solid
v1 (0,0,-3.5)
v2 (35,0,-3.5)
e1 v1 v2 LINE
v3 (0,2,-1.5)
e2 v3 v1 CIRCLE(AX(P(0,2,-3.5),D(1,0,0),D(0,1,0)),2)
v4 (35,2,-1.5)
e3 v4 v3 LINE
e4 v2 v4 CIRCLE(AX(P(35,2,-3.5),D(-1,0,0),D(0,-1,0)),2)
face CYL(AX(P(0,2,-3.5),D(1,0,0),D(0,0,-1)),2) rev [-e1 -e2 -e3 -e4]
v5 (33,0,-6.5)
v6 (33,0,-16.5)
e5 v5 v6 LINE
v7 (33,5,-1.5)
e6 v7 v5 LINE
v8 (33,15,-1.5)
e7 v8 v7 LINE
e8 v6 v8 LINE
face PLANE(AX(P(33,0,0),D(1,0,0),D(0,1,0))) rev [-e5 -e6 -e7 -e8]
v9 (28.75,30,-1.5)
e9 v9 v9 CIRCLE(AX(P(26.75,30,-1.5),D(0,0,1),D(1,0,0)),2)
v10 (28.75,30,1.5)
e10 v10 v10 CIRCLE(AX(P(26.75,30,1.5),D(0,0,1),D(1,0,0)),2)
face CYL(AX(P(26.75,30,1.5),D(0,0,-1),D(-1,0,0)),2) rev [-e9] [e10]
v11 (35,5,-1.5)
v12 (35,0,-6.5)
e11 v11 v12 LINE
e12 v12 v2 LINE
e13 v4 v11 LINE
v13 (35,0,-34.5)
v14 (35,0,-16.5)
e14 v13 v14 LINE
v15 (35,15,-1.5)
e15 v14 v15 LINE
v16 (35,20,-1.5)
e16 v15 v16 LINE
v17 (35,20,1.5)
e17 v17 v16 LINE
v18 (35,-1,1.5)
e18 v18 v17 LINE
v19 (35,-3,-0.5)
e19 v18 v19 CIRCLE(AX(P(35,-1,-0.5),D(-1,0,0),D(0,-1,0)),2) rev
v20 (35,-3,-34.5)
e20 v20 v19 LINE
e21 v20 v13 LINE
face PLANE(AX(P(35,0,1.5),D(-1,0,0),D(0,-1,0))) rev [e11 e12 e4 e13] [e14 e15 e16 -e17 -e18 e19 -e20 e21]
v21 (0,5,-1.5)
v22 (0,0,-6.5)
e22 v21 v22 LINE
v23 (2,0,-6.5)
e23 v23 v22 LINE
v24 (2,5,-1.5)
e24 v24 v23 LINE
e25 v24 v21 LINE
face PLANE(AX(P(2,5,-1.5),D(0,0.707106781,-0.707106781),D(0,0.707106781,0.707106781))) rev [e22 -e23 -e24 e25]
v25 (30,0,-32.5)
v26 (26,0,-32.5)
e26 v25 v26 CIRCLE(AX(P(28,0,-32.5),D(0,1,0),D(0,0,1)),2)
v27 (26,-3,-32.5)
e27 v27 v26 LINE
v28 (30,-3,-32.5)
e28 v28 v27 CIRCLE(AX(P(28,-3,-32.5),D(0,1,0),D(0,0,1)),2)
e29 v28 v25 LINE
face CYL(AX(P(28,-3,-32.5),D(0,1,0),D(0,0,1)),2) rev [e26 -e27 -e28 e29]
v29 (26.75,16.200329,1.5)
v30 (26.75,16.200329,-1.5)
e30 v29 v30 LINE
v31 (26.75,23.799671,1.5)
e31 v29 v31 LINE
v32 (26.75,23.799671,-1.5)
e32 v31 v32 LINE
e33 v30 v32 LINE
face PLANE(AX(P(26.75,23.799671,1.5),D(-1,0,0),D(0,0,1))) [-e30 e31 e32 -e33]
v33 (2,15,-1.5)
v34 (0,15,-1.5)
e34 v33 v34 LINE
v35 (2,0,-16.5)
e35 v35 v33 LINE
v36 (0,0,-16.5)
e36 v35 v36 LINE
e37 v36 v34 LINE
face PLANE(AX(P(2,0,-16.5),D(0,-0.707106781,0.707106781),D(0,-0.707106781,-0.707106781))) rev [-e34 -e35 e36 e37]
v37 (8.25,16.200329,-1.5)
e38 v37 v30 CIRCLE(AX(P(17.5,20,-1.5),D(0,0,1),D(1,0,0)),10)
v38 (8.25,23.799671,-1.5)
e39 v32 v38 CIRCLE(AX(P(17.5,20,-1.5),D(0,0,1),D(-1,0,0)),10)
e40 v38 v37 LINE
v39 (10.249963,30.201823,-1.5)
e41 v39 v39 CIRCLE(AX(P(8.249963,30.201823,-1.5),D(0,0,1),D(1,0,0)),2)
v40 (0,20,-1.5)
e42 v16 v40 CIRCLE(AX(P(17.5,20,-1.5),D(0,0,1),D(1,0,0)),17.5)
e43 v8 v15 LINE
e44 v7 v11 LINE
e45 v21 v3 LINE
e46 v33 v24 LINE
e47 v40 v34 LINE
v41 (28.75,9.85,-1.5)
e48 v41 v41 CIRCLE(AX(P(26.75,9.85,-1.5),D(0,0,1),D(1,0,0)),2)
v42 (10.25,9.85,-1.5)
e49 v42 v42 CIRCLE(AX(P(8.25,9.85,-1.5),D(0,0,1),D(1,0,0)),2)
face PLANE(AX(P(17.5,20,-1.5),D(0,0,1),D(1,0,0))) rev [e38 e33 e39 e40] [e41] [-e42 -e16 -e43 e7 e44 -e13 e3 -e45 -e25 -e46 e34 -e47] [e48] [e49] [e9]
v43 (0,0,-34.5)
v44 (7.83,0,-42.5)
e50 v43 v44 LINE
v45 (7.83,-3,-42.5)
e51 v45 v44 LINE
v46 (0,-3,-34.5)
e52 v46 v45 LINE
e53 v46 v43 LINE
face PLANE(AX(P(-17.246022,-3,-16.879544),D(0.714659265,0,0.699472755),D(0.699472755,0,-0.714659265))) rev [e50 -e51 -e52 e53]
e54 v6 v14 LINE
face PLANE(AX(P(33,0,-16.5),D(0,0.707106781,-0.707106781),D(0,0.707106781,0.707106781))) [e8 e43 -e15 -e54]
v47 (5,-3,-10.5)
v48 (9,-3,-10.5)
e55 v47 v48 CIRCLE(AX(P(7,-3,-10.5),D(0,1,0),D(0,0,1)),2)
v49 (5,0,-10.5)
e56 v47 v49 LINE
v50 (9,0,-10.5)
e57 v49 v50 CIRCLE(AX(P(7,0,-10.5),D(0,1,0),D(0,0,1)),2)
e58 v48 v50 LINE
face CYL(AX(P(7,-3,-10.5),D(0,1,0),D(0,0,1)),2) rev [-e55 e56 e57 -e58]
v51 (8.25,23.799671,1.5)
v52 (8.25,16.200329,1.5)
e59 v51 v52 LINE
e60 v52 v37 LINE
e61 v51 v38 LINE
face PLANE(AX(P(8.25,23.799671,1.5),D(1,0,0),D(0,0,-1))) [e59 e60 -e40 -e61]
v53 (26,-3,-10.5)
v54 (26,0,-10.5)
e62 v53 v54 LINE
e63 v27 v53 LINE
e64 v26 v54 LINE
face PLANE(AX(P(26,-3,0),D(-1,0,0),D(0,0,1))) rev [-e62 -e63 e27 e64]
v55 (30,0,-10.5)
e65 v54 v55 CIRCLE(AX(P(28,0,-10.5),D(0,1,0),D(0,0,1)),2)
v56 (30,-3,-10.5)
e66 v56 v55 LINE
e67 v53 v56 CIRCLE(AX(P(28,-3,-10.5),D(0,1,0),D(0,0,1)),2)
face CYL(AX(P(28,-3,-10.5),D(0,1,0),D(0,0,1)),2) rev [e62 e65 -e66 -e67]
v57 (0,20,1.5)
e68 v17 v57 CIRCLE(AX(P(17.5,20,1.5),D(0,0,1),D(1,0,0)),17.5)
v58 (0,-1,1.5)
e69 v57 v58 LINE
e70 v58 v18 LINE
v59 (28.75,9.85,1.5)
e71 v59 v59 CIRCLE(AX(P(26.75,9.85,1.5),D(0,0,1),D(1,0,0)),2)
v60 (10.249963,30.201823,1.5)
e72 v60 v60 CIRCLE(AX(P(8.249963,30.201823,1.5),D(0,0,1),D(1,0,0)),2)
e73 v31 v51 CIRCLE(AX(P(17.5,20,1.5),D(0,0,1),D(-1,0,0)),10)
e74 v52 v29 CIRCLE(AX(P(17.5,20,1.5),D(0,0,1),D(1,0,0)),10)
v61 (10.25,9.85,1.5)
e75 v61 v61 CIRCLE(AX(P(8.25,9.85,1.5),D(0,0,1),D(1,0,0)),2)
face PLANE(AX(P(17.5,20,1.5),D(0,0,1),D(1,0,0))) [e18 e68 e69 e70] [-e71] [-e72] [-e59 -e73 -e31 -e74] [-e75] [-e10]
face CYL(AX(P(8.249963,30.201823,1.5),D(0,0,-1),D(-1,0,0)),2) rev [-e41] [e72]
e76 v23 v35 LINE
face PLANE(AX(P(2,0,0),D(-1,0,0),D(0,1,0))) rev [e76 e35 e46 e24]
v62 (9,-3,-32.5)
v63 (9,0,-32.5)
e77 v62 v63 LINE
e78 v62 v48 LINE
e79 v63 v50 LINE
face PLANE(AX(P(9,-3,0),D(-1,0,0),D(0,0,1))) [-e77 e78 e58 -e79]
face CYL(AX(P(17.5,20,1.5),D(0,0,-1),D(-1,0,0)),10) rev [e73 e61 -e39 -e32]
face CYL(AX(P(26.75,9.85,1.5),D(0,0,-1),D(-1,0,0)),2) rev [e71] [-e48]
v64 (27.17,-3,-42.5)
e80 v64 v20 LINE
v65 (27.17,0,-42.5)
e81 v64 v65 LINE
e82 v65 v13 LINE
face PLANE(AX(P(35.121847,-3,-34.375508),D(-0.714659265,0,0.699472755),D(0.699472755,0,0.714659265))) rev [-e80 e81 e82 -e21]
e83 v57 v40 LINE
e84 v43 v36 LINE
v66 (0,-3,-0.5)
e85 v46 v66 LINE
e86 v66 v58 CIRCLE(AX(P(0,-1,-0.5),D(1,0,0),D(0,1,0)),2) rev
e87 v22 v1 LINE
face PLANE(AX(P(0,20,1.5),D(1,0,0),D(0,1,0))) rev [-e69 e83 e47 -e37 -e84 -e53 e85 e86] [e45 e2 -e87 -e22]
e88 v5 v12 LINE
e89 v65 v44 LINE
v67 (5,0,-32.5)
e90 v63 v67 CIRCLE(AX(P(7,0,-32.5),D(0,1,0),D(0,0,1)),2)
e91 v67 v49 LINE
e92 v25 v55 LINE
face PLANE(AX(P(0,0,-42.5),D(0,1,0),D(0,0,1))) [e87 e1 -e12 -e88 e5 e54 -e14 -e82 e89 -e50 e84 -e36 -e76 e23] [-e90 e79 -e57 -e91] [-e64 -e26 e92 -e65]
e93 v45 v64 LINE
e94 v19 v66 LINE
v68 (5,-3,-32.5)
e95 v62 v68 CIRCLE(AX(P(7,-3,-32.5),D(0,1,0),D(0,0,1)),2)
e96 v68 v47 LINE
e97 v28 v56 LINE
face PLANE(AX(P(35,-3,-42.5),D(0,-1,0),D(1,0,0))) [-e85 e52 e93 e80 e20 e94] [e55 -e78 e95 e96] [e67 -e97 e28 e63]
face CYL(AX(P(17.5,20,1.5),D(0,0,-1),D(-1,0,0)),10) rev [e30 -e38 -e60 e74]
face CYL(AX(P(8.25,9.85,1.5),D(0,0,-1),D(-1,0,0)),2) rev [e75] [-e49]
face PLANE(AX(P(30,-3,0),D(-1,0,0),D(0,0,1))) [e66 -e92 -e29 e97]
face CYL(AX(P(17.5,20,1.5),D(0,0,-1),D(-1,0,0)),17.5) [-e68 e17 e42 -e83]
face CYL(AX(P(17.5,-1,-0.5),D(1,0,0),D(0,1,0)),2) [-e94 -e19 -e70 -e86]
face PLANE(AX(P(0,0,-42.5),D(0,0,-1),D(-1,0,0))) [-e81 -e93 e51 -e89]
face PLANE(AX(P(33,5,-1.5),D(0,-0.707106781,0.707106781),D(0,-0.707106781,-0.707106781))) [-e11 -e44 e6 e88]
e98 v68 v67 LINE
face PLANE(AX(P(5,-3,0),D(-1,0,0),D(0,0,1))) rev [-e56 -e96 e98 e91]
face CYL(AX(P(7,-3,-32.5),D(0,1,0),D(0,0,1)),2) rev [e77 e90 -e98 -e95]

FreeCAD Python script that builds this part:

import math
import FreeCAD as App
import Part
import Sketcher

V = App.Vector
Q = App.Units.Quantity


def edges_at(feature, points):
    """Names of the edges that pass closest to the given points."""
    edges = feature.Shape.Edges
    near = lambda p: min(range(len(edges)), key=lambda i: edges[i].distToShape(Part.Vertex(*p))[0])
    return sorted({f"Edge{near(p) + 1}" for p in points})


def add_polygon(sketch, points):
    """Adds a closed chain of lines whose ends are joined by coincident constraints."""
    first, n = sketch.GeometryCount, len(points)
    for a, b in zip(points, points[1:] + points[:1]):
        sketch.addGeometry(Part.LineSegment(App.Vector(*a, 0), App.Vector(*b, 0)), False)
    for i in range(n):
        sketch.addConstraint(Sketcher.Constraint("Coincident", first + i, 2, first + (i + 1) % n, 1))

doc = App.newDocument("Part")
params = doc.addObject("Spreadsheet::Sheet", "Params")
for row, (alias, value) in enumerate([
    ("sketch1_diameter", "4 mm"),
    ("sketch1_radius", "10 mm"),
    ("sketch1_radius2", "17.5 mm"),
    ("sketch1_height", "20 mm"),
    ("pad1_length", "3 mm"),
    ("sketch2_width", "35 mm"),
    ("sketch2_height", "3 mm"),
    ("pad2_length", "44 mm"),
    ("sketch3_width", "10 mm"),
    ("pad3_length", "2 mm"),
    ("sketch4_radius", "2 mm"),
    ("sketch4_height", "22 mm"),
    ("sketch4_height2", "8 mm"),
    ("sketch4_width", "7.83 mm"),
    ("fillet_radius", "2 mm"),
], start=1):
    params.set(f"A{row}", alias)
    params.set(f"B{row}", "=" + value)
    params.setAlias(f"B{row}", alias)

body = doc.addObject("PartDesign::Body", "Body")

# Sketch on XY plane
sketch1 = body.newObject("Sketcher::SketchObject", "Sketch")
sketch1.AttachmentSupport = (doc.getObject("XY_Plane"), [""])
sketch1.MapMode = "FlatFace"
sketch1.addGeometry(Part.LineSegment(V(0, 0, 0), V(35, 0, 0)), False)
sketch1.addGeometry(Part.LineSegment(V(35, 0, 0), V(35, 20, 0)), False)
sketch1.addGeometry(Part.ArcOfCircle(Part.Circle(V(17.5, 20, 0), V(0, 0, 1), 17.5), math.radians(0), math.radians(180)), False)
sketch1.addGeometry(Part.LineSegment(V(0, 20, 0), V(0, 0, 0)), False)
sketch1.addGeometry(Part.Circle(V(8.25, 9.85, 0), V(0, 0, 1), 2), False)
sketch1.addGeometry(Part.Circle(V(26.75, 9.85, 0), V(0, 0, 1), 2), False)
sketch1.addGeometry(Part.LineSegment(V(8.25, 16.200329, 0), V(8.25, 23.799671, 0)), False)
sketch1.addGeometry(Part.ArcOfCircle(Part.Circle(V(17.5, 20, 0), V(0, 0, 1), 10), math.radians(22.331645), math.radians(157.668355)), False)
sketch1.addGeometry(Part.LineSegment(V(26.75, 23.799671, 0), V(26.75, 16.200329, 0)), False)
sketch1.addGeometry(Part.ArcOfCircle(Part.Circle(V(17.5, 20, 0), V(0, 0, 1), 10), math.radians(-157.668355), math.radians(-22.331645)), False)
sketch1.addGeometry(Part.Circle(V(8.249963, 30.201823, 0), V(0, 0, 1), 2), False)
sketch1.addGeometry(Part.Circle(V(26.75, 30, 0), V(0, 0, 1), 2), False)
sketch1.addConstraint(Sketcher.Constraint("Coincident", 0, 2, 1, 1))
sketch1.addConstraint(Sketcher.Constraint("Tangent", 1, 2, 2, 1))
sketch1.addConstraint(Sketcher.Constraint("Tangent", 2, 2, 3, 1))
sketch1.addConstraint(Sketcher.Constraint("Coincident", 3, 2, 0, 1))
sketch1.addConstraint(Sketcher.Constraint("Coincident", 6, 2, 7, 2))
sketch1.addConstraint(Sketcher.Constraint("Coincident", 7, 1, 8, 1))
sketch1.addConstraint(Sketcher.Constraint("Coincident", 8, 2, 9, 2))
sketch1.addConstraint(Sketcher.Constraint("Coincident", 9, 1, 6, 1))
sketch1.addConstraint(Sketcher.Constraint("Horizontal", 0))
sketch1.addConstraint(Sketcher.Constraint("Vertical", 1))
sketch1.addConstraint(Sketcher.Constraint("Vertical", 3))
sketch1.addConstraint(Sketcher.Constraint("Vertical", 6))
sketch1.addConstraint(Sketcher.Constraint("Vertical", 8))
sketch1.addConstraint(Sketcher.Constraint("Coincident", 3, 2, -1, 1))
sketch1.addConstraint(Sketcher.Constraint("Coincident", 7, 3, 2, 3))
sketch1.addConstraint(Sketcher.Constraint("Coincident", 9, 3, 2, 3))
sketch1.addConstraint(Sketcher.Constraint("Equal", 4, 5))
sketch1.addConstraint(Sketcher.Constraint("Equal", 7, 9))
sketch1.addConstraint(Sketcher.Constraint("Equal", 5, 10))
sketch1.addConstraint(Sketcher.Constraint("Equal", 10, 11))
sketch1.addConstraint(Sketcher.Constraint("Horizontal", 4, 3, 5, 3))
sketch1.addConstraint(Sketcher.Constraint("Horizontal", 6, 2, 7, 1))
sketch1.addConstraint(Sketcher.Constraint("Vertical", 5, 3, 11, 3))
sketch1.addConstraint(Sketcher.Constraint("Vertical", 4, 3, 6, 2))
sketch1.addConstraint(Sketcher.Constraint("Vertical", 11, 3, 7, 1))
sketch1.addConstraint(Sketcher.Constraint("Diameter", 4, Q("4 mm")))
sketch1.addConstraint(Sketcher.Constraint("Radius", 7, Q("10 mm")))
sketch1.addConstraint(Sketcher.Constraint("Radius", 2, Q("17.5 mm")))
sketch1.addConstraint(Sketcher.Constraint("DistanceY", 1, 1, 1, 2, Q("20 mm")))
sketch1.addConstraint(Sketcher.Constraint("DistanceY", -1, 1, 11, 3, Q("30 mm")))
sketch1.addConstraint(Sketcher.Constraint("DistanceX", 4, 3, 5, 3, Q("18.5 mm")))
sketch1.addConstraint(Sketcher.Constraint("DistanceY", -1, 1, 4, 3, Q("9.85 mm")))
sketch1.addConstraint(Sketcher.Constraint("DistanceX", -1, 1, 10, 3, Q("8.249963 mm")))
sketch1.addConstraint(Sketcher.Constraint("DistanceY", -1, 1, 10, 3, Q("30.201823 mm")))
sketch1.setExpression("Constraints[25]", "Params.sketch1_diameter")
sketch1.setExpression("Constraints[26]", "Params.sketch1_radius")
sketch1.setExpression("Constraints[27]", "Params.sketch1_radius2")
sketch1.setExpression("Constraints[28]", "Params.sketch1_height")
pad1 = body.newObject("PartDesign::Pad", "Pad")
pad1.Profile = sketch1
pad1.setExpression("Length", "Params.pad1_length")
pad1.Midplane = True

# Sketch on XY plane
sketch2 = body.newObject("Sketcher::SketchObject", "Sketch001")
sketch2.AttachmentSupport = (doc.getObject("XY_Plane"), [""])
sketch2.MapMode = "FlatFace"
sketch2.AttachmentOffset = App.Placement(V(0, 0, 1.5), App.Rotation())
add_polygon(sketch2, [(0, 0), (0, -3), (35, -3), (35, 0)])  # lines 0-3
sketch2.addConstraint(Sketcher.Constraint("Vertical", 0))
sketch2.addConstraint(Sketcher.Constraint("Horizontal", 1))
sketch2.addConstraint(Sketcher.Constraint("Vertical", 2))
sketch2.addConstraint(Sketcher.Constraint("Horizontal", 3))
sketch2.addConstraint(Sketcher.Constraint("Coincident", 3, 2, -1, 1))
sketch2.addConstraint(Sketcher.Constraint("DistanceX", 1, 1, 1, 2, Q("35 mm")))
sketch2.addConstraint(Sketcher.Constraint("DistanceY", 0, 2, 0, 1, Q("3 mm")))
sketch2.setExpression("Constraints[9]", "Params.sketch2_width")
sketch2.setExpression("Constraints[10]", "Params.sketch2_height")
pad2 = body.newObject("PartDesign::Pad", "Pad001")
pad2.Profile = sketch2
pad2.setExpression("Length", "Params.pad2_length")
pad2.Reversed = True

# Sketch on YZ plane
sketch3 = body.newObject("Sketcher::SketchObject", "Sketch002")
sketch3.AttachmentSupport = (doc.getObject("YZ_Plane"), [""])
sketch3.MapMode = "FlatFace"
sketch3.AttachmentOffset = App.Placement(V(0, 0, 35), App.Rotation())
add_polygon(sketch3, [(15, -1.5), (5, -1.5), (0, -6.5), (0, -16.5)])  # lines 0-3
sketch3.addConstraint(Sketcher.Constraint("Horizontal", 0))
sketch3.addConstraint(Sketcher.Constraint("Vertical", 2))
sketch3.addConstraint(Sketcher.Constraint("PointOnObject", 1, 2, -2))
sketch3.addConstraint(Sketcher.Constraint("Parallel", 1, 3))
sketch3.addConstraint(Sketcher.Constraint("Equal", 0, 2))
sketch3.addConstraint(Sketcher.Constraint("DistanceX", 0, 2, 0, 1, Q("10 mm")))
sketch3.addConstraint(Sketcher.Constraint("DistanceX", -1, 1, 0, 2, Q("5 mm")))
sketch3.addConstraint(Sketcher.Constraint("DistanceY", 0, 2, -1, 1, Q("1.5 mm")))
sketch3.setExpression("Constraints[9]", "Params.sketch3_width")
pad3 = body.newObject("PartDesign::Pad", "Pad002")
pad3.Profile = sketch3
pad3.setExpression("Length", "Params.pad3_length")
pad3.Reversed = True
doc.recompute()

datumplane = body.newObject("PartDesign::Plane", "DatumPlane")
datumplane.AttachmentSupport = (doc.getObject("YZ_Plane"), [""])
datumplane.MapMode = "FlatFace"
datumplane.AttachmentOffset = App.Placement(V(0, 0, 17.5), App.Rotation())
mirrored = body.newObject("PartDesign::Mirrored", "Mirrored")
mirrored.Originals = [pad3]
mirrored.MirrorPlane = (datumplane, [""])
body.Tip = mirrored

# Sketch on XZ plane
sketch4 = body.newObject("Sketcher::SketchObject", "Sketch003")
sketch4.AttachmentSupport = (doc.getObject("XZ_Plane"), [""])
sketch4.MapMode = "FlatFace"
sketch4.addGeometry(Part.LineSegment(V(5, -32.5, 0), V(5, -10.5, 0)), False)  # 0
sketch4.addGeometry(Part.ArcOfCircle(Part.Circle(V(7, -10.5, 0), V(0, 0, 1), 2), math.radians(0), math.radians(180)), False)  # 1
sketch4.addGeometry(Part.LineSegment(V(9, -10.5, 0), V(9, -32.5, 0)), False)  # 2
sketch4.addGeometry(Part.ArcOfCircle(Part.Circle(V(7, -32.5, 0), V(0, 0, 1), 2), math.radians(180), math.radians(360)), False)  # 3
sketch4.addGeometry(Part.LineSegment(V(26, -32.5, 0), V(26, -10.5, 0)), False)  # 4
sketch4.addGeometry(Part.ArcOfCircle(Part.Circle(V(28, -10.5, 0), V(0, 0, 1), 2), math.radians(0), math.radians(180)), False)  # 5
sketch4.addGeometry(Part.LineSegment(V(30, -10.5, 0), V(30, -32.5, 0)), False)  # 6
sketch4.addGeometry(Part.ArcOfCircle(Part.Circle(V(28, -32.5, 0), V(0, 0, 1), 2), math.radians(180), math.radians(360)), False)  # 7
add_polygon(sketch4, [(35, -42.5), (27.17, -42.5), (35, -34.5)])  # lines 8-10
add_polygon(sketch4, [(0, -42.5), (0, -34.5), (7.83, -42.5)])  # lines 11-13
sketch4.addConstraint(Sketcher.Constraint("Tangent", 0, 2, 1, 2))
sketch4.addConstraint(Sketcher.Constraint("Tangent", 1, 1, 2, 1))
sketch4.addConstraint(Sketcher.Constraint("Tangent", 2, 2, 3, 2))
sketch4.addConstraint(Sketcher.Constraint("Tangent", 3, 1, 0, 1))
sketch4.addConstraint(Sketcher.Constraint("Tangent", 4, 2, 5, 2))
sketch4.addConstraint(Sketcher.Constraint("Tangent", 5, 1, 6, 1))
sketch4.addConstraint(Sketcher.Constraint("Tangent", 6, 2, 7, 2))
sketch4.addConstraint(Sketcher.Constraint("Tangent", 7, 1, 4, 1))
sketch4.addConstraint(Sketcher.Constraint("Vertical", 0))
sketch4.addConstraint(Sketcher.Constraint("Vertical", 2))
sketch4.addConstraint(Sketcher.Constraint("Vertical", 4))
sketch4.addConstraint(Sketcher.Constraint("Vertical", 6))
sketch4.addConstraint(Sketcher.Constraint("Horizontal", 8))
sketch4.addConstraint(Sketcher.Constraint("Vertical", 10))
sketch4.addConstraint(Sketcher.Constraint("Vertical", 11))
sketch4.addConstraint(Sketcher.Constraint("Horizontal", 13))
sketch4.addConstraint(Sketcher.Constraint("Equal", 3, 5))
sketch4.addConstraint(Sketcher.Constraint("PointOnObject", 11, 2, -2))
sketch4.addConstraint(Sketcher.Constraint("Horizontal", 1, 3, 5, 3))
sketch4.addConstraint(Sketcher.Constraint("Horizontal", 3, 3, 7, 3))
sketch4.addConstraint(Sketcher.Constraint("Horizontal", 9, 2, 11, 2))
sketch4.addConstraint(Sketcher.Constraint("Horizontal", 10, 2, 12, 2))
sketch4.addConstraint(Sketcher.Constraint("Equal", 8, 13))
sketch4.addConstraint(Sketcher.Constraint("Radius", 1, Q("2 mm")))
sketch4.addConstraint(Sketcher.Constraint("DistanceY", 0, 1, 0, 2, Q("22 mm")))
sketch4.addConstraint(Sketcher.Constraint("DistanceY", 10, 2, 10, 1, Q("8 mm")))
sketch4.addConstraint(Sketcher.Constraint("DistanceX", -1, 1, 1, 3, Q("7 mm")))
sketch4.addConstraint(Sketcher.Constraint("DistanceX", -1, 1, 5, 3, Q("28 mm")))
sketch4.addConstraint(Sketcher.Constraint("DistanceX", -1, 1, 9, 2, Q("35 mm")))
sketch4.addConstraint(Sketcher.Constraint("DistanceY", 8, 2, 7, 3, Q("10 mm")))
sketch4.addConstraint(Sketcher.Constraint("DistanceX", 8, 2, 8, 1, Q("7.83 mm")))
sketch4.addConstraint(Sketcher.Constraint("DistanceY", 1, 3, -1, 1, Q("10.5 mm")))
sketch4.setExpression("Constraints[29]", "Params.sketch4_radius")
sketch4.setExpression("Constraints[30]", "Params.sketch4_height")
sketch4.setExpression("Constraints[31]", "Params.sketch4_height2")
sketch4.setExpression("Constraints[36]", "Params.sketch4_width")
pocket1 = body.newObject("PartDesign::Pocket", "Pocket")
pocket1.Profile = sketch4
pocket1.Type = "ThroughAll"
pocket1.Reversed = True
doc.recompute()

fillet = body.newObject("PartDesign::Fillet", "Fillet")
fillet.Base = (pocket1, edges_at(pocket1, [(17.5, -3, 1.5), (17.5, 0, -1.5)]))
fillet.setExpression("Radius", "Params.fillet_radius")

doc.recompute()
